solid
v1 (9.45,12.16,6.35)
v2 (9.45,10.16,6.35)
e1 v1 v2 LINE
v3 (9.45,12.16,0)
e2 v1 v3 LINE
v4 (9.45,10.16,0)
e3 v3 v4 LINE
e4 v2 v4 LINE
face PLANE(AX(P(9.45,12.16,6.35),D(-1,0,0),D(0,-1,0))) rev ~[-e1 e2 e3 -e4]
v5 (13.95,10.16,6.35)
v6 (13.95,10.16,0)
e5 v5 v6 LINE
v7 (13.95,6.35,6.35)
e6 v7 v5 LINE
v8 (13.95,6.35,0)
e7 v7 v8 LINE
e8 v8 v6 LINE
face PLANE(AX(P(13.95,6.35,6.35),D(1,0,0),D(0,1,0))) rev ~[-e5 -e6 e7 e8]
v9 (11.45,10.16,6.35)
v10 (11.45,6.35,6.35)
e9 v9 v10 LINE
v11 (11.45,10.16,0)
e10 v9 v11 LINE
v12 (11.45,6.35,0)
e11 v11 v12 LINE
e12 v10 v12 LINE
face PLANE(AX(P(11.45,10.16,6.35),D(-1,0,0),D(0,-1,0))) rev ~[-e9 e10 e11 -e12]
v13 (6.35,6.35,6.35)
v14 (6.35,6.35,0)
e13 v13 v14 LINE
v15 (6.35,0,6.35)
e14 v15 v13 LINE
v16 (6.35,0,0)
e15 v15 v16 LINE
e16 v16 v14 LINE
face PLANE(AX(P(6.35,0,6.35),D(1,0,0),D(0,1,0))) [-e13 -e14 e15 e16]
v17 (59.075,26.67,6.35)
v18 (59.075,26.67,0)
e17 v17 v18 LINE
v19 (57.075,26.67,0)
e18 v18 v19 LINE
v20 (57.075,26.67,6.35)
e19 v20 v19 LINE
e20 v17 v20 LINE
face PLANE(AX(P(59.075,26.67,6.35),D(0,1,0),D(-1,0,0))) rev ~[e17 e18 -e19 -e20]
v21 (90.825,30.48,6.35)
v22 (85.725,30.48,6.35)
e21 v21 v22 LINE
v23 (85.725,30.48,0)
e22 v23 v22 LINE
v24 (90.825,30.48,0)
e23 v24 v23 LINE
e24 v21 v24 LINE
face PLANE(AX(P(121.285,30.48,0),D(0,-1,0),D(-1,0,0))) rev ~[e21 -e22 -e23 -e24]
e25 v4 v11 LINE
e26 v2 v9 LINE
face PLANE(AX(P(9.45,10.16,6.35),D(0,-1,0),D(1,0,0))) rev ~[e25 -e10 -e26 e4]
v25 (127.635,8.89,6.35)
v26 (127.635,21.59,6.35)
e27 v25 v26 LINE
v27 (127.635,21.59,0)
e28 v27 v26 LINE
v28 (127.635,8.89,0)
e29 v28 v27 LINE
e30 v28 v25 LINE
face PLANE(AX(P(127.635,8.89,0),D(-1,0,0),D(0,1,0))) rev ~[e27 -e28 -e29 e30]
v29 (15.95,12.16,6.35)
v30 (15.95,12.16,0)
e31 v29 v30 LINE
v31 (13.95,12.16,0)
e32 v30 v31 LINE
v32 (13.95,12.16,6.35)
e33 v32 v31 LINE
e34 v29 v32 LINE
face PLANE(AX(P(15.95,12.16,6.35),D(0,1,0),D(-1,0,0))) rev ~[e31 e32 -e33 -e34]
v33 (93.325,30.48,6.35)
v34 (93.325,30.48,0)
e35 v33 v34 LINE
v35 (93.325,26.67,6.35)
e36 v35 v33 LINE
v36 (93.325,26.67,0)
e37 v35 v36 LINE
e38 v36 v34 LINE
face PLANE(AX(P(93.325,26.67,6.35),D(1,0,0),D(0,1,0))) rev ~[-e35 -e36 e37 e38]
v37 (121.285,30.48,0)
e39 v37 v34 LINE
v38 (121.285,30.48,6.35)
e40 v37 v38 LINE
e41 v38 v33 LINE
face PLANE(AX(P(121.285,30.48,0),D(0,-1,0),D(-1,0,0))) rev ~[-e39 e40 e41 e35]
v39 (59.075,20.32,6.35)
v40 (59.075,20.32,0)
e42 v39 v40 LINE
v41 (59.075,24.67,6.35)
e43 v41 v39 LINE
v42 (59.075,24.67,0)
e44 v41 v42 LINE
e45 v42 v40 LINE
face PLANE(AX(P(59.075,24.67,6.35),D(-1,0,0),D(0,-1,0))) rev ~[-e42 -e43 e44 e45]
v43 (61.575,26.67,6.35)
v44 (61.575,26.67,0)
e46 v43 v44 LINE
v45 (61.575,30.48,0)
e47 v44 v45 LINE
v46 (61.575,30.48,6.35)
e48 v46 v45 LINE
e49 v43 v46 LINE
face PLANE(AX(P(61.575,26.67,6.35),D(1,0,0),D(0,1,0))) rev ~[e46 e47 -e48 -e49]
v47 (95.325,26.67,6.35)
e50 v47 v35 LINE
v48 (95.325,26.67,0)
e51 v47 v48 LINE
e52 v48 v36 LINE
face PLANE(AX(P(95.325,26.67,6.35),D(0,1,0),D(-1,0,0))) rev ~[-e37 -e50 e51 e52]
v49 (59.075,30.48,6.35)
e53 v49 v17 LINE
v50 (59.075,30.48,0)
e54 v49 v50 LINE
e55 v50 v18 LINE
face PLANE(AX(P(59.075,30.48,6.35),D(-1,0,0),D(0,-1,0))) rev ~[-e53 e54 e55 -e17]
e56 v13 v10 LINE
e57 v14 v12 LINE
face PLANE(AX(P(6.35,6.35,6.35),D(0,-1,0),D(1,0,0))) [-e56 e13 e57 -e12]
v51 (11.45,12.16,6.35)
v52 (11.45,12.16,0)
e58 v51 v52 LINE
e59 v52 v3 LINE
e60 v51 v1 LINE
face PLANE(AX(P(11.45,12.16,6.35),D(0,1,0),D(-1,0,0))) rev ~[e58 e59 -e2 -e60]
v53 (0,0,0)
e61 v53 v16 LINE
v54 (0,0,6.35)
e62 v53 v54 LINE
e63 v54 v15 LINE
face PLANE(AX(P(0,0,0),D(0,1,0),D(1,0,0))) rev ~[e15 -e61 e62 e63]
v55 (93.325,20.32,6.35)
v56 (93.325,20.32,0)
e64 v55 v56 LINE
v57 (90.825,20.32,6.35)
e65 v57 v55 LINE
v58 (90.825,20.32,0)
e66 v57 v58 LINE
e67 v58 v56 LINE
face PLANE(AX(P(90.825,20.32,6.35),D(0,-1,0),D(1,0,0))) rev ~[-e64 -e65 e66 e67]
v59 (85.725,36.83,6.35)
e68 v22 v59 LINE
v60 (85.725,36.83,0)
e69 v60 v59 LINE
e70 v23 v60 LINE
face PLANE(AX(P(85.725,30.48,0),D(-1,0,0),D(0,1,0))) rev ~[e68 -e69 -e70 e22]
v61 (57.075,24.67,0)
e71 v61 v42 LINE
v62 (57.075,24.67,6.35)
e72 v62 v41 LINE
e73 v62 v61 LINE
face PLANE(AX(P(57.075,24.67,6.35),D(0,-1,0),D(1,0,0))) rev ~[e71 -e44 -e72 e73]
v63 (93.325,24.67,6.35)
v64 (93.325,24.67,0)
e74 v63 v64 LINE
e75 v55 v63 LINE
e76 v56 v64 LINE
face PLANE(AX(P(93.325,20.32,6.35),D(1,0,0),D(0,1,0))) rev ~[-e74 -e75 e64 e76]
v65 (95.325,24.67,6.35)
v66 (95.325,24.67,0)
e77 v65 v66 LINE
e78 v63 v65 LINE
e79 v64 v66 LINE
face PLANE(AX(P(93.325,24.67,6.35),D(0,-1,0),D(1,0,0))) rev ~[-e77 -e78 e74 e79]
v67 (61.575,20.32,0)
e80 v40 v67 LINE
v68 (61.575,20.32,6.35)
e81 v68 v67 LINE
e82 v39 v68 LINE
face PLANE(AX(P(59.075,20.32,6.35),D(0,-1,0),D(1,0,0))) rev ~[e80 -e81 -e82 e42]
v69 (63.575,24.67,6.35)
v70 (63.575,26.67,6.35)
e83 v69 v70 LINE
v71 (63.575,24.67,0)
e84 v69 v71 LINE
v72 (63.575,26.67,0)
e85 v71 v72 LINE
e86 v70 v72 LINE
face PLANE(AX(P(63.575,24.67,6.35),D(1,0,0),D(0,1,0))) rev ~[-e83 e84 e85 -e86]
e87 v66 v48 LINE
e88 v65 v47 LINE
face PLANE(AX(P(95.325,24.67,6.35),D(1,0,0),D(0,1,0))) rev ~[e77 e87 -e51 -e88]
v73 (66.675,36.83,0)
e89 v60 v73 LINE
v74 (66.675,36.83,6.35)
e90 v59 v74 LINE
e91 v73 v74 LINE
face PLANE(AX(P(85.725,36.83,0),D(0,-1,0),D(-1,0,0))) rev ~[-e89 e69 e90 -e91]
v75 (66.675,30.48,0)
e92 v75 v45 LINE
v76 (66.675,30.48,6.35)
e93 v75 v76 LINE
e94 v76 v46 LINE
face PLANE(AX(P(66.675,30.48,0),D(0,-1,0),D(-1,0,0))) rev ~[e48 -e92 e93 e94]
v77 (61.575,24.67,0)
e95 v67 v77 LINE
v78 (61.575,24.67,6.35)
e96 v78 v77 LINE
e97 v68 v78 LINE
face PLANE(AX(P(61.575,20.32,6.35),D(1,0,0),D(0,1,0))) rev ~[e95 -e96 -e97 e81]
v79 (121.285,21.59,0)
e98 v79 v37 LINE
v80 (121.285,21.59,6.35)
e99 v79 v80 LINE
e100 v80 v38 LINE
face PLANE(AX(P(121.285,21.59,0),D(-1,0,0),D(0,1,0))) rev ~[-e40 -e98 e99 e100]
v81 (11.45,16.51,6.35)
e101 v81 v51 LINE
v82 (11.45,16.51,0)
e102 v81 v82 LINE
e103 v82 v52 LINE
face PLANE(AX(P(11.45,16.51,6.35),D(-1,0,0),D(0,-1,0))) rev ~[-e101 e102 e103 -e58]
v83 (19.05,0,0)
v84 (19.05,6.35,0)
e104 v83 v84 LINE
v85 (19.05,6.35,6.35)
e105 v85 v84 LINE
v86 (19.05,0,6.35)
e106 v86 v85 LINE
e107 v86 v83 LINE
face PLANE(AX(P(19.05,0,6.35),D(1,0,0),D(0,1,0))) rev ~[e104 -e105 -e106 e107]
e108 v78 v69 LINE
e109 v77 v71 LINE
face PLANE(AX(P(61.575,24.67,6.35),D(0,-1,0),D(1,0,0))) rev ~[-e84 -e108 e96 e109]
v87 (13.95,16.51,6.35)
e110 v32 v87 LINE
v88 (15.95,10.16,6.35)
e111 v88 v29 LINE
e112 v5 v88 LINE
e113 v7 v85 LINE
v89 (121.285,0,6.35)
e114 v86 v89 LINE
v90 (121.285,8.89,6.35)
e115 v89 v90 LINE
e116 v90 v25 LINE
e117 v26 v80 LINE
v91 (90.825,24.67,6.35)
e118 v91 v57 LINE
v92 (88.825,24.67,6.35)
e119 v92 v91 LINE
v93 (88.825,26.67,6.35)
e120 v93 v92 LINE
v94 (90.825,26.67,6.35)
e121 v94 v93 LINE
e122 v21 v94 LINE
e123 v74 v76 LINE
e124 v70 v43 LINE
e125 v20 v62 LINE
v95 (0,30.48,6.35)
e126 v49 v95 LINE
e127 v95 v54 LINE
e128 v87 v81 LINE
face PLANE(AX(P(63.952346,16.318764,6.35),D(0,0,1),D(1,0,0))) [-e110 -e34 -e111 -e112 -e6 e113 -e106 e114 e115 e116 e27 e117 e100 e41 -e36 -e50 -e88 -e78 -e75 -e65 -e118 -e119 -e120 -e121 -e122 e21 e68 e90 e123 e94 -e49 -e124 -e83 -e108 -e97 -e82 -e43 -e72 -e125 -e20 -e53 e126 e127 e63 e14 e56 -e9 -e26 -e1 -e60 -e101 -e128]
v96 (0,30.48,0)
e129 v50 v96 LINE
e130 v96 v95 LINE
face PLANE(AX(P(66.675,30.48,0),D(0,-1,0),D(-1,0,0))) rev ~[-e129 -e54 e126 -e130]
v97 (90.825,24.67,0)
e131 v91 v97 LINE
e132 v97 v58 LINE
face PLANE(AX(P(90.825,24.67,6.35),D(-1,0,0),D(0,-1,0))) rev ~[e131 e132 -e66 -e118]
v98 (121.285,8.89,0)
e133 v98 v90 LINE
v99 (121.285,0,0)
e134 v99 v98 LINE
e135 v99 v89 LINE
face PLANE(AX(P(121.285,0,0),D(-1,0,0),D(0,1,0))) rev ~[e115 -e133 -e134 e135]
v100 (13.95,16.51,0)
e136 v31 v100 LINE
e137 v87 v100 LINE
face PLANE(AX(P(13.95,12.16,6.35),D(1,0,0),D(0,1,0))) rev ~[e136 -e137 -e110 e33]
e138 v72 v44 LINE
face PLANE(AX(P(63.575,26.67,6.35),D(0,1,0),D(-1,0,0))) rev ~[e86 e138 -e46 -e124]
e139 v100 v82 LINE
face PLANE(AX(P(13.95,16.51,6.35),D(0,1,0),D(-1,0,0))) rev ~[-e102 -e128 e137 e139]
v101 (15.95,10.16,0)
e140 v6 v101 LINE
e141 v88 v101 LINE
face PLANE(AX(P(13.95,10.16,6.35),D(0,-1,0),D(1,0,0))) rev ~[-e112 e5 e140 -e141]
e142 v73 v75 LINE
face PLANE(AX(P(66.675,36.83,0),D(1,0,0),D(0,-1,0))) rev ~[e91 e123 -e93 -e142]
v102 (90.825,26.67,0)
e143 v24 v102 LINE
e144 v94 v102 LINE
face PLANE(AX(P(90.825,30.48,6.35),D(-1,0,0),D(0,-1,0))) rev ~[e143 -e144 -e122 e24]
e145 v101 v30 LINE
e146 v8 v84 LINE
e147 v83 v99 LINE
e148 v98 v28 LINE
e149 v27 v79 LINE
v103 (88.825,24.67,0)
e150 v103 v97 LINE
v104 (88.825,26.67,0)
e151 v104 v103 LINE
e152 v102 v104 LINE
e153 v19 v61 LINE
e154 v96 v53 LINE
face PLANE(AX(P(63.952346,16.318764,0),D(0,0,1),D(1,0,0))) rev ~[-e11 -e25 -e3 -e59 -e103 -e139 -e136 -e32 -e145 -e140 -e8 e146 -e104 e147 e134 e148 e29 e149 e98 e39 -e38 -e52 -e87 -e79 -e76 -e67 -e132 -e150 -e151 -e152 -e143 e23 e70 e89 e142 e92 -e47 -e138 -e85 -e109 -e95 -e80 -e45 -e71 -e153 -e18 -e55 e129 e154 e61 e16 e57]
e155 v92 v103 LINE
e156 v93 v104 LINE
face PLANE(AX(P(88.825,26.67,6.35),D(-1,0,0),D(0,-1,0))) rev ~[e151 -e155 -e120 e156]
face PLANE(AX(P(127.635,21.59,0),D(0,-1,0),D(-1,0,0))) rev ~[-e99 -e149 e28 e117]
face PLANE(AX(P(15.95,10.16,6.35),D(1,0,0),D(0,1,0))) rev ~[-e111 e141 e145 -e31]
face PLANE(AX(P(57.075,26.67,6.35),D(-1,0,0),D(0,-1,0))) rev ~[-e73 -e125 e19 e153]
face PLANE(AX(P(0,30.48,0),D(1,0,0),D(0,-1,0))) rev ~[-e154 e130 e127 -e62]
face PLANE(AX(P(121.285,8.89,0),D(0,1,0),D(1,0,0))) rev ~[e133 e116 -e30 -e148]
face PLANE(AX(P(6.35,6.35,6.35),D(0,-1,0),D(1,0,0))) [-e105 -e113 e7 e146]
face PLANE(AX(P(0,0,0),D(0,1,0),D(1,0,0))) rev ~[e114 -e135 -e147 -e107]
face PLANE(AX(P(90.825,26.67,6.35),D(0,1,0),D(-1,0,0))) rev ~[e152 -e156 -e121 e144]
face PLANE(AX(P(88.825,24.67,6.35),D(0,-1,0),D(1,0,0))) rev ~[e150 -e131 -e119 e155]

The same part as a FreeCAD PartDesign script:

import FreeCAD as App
import Part
import Sketcher
from FreeCAD import Vector
Q = App.Units.Quantity


def add_polygon(sketch, points):
    """Adds a closed chain of lines whose ends are joined by coincident constraints."""
    first, n = sketch.GeometryCount, len(points)
    for a, b in zip(points, points[1:] + points[:1]):
        sketch.addGeometry(Part.LineSegment(App.Vector(*a, 0), App.Vector(*b, 0)), False)
    for i in range(n):
        sketch.addConstraint(Sketcher.Constraint("Coincident", first + i, 2, first + (i + 1) % n, 1))

doc = App.newDocument("Part")
body = doc.addObject("PartDesign::Body", "Body")

# Sketch on XY plane
sketch1 = body.newObject("Sketcher::SketchObject", "Sketch")
sketch1.AttachmentSupport = (doc.getObject("XY_Plane"), [""])
sketch1.MapMode = "FlatFace"
add_polygon(sketch1, [(67, 30), (0, 30), (0, 0), (121, 0), (121, 9), (128, 9), (128, 22), (121, 22), (121, 30), (86, 30), (86, 37), (67, 37)])  # lines 0-11
sketch1.addConstraint([
    Sketcher.Constraint("Horizontal", 0),
    Sketcher.Constraint("Vertical", 1),
    Sketcher.Constraint("Horizontal", 2),
    Sketcher.Constraint("Vertical", 3),
    Sketcher.Constraint("Horizontal", 4),
    Sketcher.Constraint("Vertical", 5),
    Sketcher.Constraint("Horizontal", 6),
    Sketcher.Constraint("Vertical", 7),
    Sketcher.Constraint("Horizontal", 8),
    Sketcher.Constraint("Vertical", 9),
    Sketcher.Constraint("Horizontal", 10),
    Sketcher.Constraint("Vertical", 11),
    Sketcher.Constraint("Coincident", 1, 2, -1, 1),
    Sketcher.Constraint("Horizontal", 0, 2, 7, 2),
    Sketcher.Constraint("Vertical", 3, 2, 6, 2),
    Sketcher.Constraint("Equal", 3, 7),
    Sketcher.Constraint("Equal", 6, 9),
    Sketcher.Constraint("DistanceX", 8, 2, 8, 1, Q("1.4 in")),
    Sketcher.Constraint("DistanceY", 1, 2, 1, 1, Q("1.2 in")),
    Sketcher.Constraint("DistanceY", 5, 1, 5, 2, Q("0.5 in")),
    Sketcher.Constraint("DistanceX", 4, 1, 4, 2, Q("0.25 in")),
    Sketcher.Constraint("DistanceX", 10, 2, 10, 1, Q("0.75 in")),
    Sketcher.Constraint("DistanceX", 0, 2, 0, 1, Q("2.625 in")),
])
pad1 = body.newObject("PartDesign::Pad", "Pad")
pad1.Profile = sketch1
pad1.Length = Q("0.25 in")

# Sketch on XY plane
sketch2 = body.newObject("Sketcher::SketchObject", "Sketch001")
sketch2.AttachmentSupport = (doc.getObject("XY_Plane"), [""])
sketch2.MapMode = "FlatFace"
sketch2.AttachmentOffset = App.Placement(Vector(0, 0, 0.25 * 25.4), App.Rotation())
add_polygon(sketch2, [(6, 6), (6, 0), (19, 0), (19, 6)])  # lines 0-3
sketch2.addConstraint([
    Sketcher.Constraint("Vertical", 0),
    Sketcher.Constraint("Horizontal", 1),
    Sketcher.Constraint("Vertical", 2),
    Sketcher.Constraint("Horizontal", 3),
    Sketcher.Constraint("PointOnObject", 0, 2, -1),
    Sketcher.Constraint("DistanceX", 1, 1, 1, 2, Q("0.5 in")),
    Sketcher.Constraint("DistanceY", 0, 2, 0, 1, Q("0.25 in")),
    Sketcher.Constraint("DistanceX", -1, 1, 0, 2, Q("0.25 in")),
])
pocket1 = body.newObject("PartDesign::Pocket", "Pocket")
pocket1.Profile = sketch2
pocket1.Type = "ThroughAll"

# Sketch on XY plane
sketch3 = body.newObject("Sketcher::SketchObject", "Sketch002")
sketch3.AttachmentSupport = (doc.getObject("XY_Plane"), [""])
sketch3.MapMode = "FlatFace"
sketch3.AttachmentOffset = App.Placement(Vector(0, 0, 0.25 * 25.4), App.Rotation())
add_polygon(sketch3, [(61.6, 30.5), (59.1, 30.5), (59.1, 26.7), (57.1, 26.7), (57.1, 24.7), (59.1, 24.7), (59.1, 20.3), (61.6, 20.3), (61.6, 24.7), (63.6, 24.7), (63.6, 26.7), (61.6, 26.7)])  # lines 0-11
add_polygon(sketch3, [(90.8, 26.7), (88.8, 26.7), (88.8, 24.7), (90.8, 24.7), (90.8, 20.3), (93.3, 20.3), (93.3, 24.7), (95.3, 24.7), (95.3, 26.7), (93.3, 26.7), (93.3, 30.5), (90.8, 30.5)])  # lines 12-23
add_polygon(sketch3, [(11.4, 10.2), (11.4, 6.3), (13.9, 6.3), (13.9, 10.2), (15.9, 10.2), (15.9, 12.2), (13.9, 12.2), (13.9, 16.5), (11.4, 16.5), (11.4, 12.2), (9.4, 12.2), (9.4, 10.2)])  # lines 24-35
sketch3.addConstraint([
    Sketcher.Constraint("Horizontal", 0),
    Sketcher.Constraint("Vertical", 1),
    Sketcher.Constraint("Horizontal", 2),
    Sketcher.Constraint("Vertical", 3),
    Sketcher.Constraint("Horizontal", 4),
    Sketcher.Constraint("Vertical", 5),
    Sketcher.Constraint("Horizontal", 6),
    Sketcher.Constraint("Vertical", 7),
    Sketcher.Constraint("Horizontal", 8),
    Sketcher.Constraint("Vertical", 9),
    Sketcher.Constraint("Horizontal", 10),
    Sketcher.Constraint("Vertical", 11),
    Sketcher.Constraint("Horizontal", 12),
    Sketcher.Constraint("Vertical", 13),
    Sketcher.Constraint("Horizontal", 14),
    Sketcher.Constraint("Vertical", 15),
    Sketcher.Constraint("Horizontal", 16),
    Sketcher.Constraint("Vertical", 17),
    Sketcher.Constraint("Horizontal", 18),
    Sketcher.Constraint("Vertical", 19),
    Sketcher.Constraint("Horizontal", 20),
    Sketcher.Constraint("Vertical", 21),
    Sketcher.Constraint("Horizontal", 22),
    Sketcher.Constraint("Vertical", 23),
    Sketcher.Constraint("Vertical", 24),
    Sketcher.Constraint("Horizontal", 25),
    Sketcher.Constraint("Vertical", 26),
    Sketcher.Constraint("Horizontal", 27),
    Sketcher.Constraint("Vertical", 28),
    Sketcher.Constraint("Horizontal", 29),
    Sketcher.Constraint("Vertical", 30),
    Sketcher.Constraint("Horizontal", 31),
    Sketcher.Constraint("Vertical", 32),
    Sketcher.Constraint("Horizontal", 33),
    Sketcher.Constraint("Vertical", 34),
    Sketcher.Constraint("Horizontal", 35),
    Sketcher.Constraint("Horizontal", 4, 2, 7, 2),
    Sketcher.Constraint("Horizontal", 2, 2, 9, 2),
    Sketcher.Constraint("Horizontal", 10, 2, 12, 2),
    Sketcher.Constraint("Horizontal", 8, 2, 13, 2),
    Sketcher.Constraint("Horizontal", 6, 2, 15, 2),
    Sketcher.Constraint("Horizontal", 14, 2, 17, 2),
    Sketcher.Constraint("Horizontal", 12, 2, 19, 2),
    Sketcher.Constraint("Horizontal", 11, 2, 21, 2),
    Sketcher.Constraint("Horizontal", 29, 2, 32, 2),
    Sketcher.Constraint("Horizontal", 27, 2, 34, 2),
    Sketcher.Constraint("Vertical", 1, 2, 4, 2),
    Sketcher.Constraint("Vertical", 7, 2, 10, 2),
    Sketcher.Constraint("Vertical", 17, 2, 20, 2),
    Sketcher.Constraint("Vertical", 15, 2, 22, 2),
    Sketcher.Constraint("Vertical", 26, 2, 29, 2),
    Sketcher.Constraint("Vertical", 24, 2, 31, 2),
    Sketcher.Constraint("Equal", 4, 8),
    Sketcher.Constraint("Equal", 10, 12),
    Sketcher.Constraint("Equal", 6, 16),
    Sketcher.Constraint("Equal", 14, 18),
    Sketcher.Constraint("Equal", 22, 25),
    Sketcher.Constraint("Equal", 20, 27),
    Sketcher.Constraint("Equal", 29, 33),
    Sketcher.Constraint("Equal", 35, 3),
    Sketcher.Constraint("Equal", 23, 24),
    Sketcher.Constraint("Equal", 19, 28),
    Sketcher.Constraint("Equal", 17, 30),
    Sketcher.Constraint("DistanceY", 1, 2, 1, 1, Q("0.15 in")),
    Sketcher.Constraint("DistanceY", -1, 1, 0, 2, Q("1.2 in")),
    Sketcher.Constraint("DistanceY", -1, 1, 5, 2, Q("0.8 in")),
    Sketcher.Constraint("DistanceY", -1, 1, 26, 2, Q("0.4 in")),
    Sketcher.Constraint("DistanceX", 24, 2, 5, 2, Q("1.875 in")),
    Sketcher.Constraint("DistanceX", 0, 2, 0, 1, 2.5),
    Sketcher.Constraint("DistanceX", 2, 2, 2, 1, 2.0),
    Sketcher.Constraint("DistanceX", -1, 1, 0, 2, 59.075),
    Sketcher.Constraint("DistanceX", -1, 1, 12, 2, 88.825),
])
pocket2 = body.newObject("PartDesign::Pocket", "Pocket001")
pocket2.Profile = sketch3
pocket2.Type = "ThroughAll"

doc.recompute()
